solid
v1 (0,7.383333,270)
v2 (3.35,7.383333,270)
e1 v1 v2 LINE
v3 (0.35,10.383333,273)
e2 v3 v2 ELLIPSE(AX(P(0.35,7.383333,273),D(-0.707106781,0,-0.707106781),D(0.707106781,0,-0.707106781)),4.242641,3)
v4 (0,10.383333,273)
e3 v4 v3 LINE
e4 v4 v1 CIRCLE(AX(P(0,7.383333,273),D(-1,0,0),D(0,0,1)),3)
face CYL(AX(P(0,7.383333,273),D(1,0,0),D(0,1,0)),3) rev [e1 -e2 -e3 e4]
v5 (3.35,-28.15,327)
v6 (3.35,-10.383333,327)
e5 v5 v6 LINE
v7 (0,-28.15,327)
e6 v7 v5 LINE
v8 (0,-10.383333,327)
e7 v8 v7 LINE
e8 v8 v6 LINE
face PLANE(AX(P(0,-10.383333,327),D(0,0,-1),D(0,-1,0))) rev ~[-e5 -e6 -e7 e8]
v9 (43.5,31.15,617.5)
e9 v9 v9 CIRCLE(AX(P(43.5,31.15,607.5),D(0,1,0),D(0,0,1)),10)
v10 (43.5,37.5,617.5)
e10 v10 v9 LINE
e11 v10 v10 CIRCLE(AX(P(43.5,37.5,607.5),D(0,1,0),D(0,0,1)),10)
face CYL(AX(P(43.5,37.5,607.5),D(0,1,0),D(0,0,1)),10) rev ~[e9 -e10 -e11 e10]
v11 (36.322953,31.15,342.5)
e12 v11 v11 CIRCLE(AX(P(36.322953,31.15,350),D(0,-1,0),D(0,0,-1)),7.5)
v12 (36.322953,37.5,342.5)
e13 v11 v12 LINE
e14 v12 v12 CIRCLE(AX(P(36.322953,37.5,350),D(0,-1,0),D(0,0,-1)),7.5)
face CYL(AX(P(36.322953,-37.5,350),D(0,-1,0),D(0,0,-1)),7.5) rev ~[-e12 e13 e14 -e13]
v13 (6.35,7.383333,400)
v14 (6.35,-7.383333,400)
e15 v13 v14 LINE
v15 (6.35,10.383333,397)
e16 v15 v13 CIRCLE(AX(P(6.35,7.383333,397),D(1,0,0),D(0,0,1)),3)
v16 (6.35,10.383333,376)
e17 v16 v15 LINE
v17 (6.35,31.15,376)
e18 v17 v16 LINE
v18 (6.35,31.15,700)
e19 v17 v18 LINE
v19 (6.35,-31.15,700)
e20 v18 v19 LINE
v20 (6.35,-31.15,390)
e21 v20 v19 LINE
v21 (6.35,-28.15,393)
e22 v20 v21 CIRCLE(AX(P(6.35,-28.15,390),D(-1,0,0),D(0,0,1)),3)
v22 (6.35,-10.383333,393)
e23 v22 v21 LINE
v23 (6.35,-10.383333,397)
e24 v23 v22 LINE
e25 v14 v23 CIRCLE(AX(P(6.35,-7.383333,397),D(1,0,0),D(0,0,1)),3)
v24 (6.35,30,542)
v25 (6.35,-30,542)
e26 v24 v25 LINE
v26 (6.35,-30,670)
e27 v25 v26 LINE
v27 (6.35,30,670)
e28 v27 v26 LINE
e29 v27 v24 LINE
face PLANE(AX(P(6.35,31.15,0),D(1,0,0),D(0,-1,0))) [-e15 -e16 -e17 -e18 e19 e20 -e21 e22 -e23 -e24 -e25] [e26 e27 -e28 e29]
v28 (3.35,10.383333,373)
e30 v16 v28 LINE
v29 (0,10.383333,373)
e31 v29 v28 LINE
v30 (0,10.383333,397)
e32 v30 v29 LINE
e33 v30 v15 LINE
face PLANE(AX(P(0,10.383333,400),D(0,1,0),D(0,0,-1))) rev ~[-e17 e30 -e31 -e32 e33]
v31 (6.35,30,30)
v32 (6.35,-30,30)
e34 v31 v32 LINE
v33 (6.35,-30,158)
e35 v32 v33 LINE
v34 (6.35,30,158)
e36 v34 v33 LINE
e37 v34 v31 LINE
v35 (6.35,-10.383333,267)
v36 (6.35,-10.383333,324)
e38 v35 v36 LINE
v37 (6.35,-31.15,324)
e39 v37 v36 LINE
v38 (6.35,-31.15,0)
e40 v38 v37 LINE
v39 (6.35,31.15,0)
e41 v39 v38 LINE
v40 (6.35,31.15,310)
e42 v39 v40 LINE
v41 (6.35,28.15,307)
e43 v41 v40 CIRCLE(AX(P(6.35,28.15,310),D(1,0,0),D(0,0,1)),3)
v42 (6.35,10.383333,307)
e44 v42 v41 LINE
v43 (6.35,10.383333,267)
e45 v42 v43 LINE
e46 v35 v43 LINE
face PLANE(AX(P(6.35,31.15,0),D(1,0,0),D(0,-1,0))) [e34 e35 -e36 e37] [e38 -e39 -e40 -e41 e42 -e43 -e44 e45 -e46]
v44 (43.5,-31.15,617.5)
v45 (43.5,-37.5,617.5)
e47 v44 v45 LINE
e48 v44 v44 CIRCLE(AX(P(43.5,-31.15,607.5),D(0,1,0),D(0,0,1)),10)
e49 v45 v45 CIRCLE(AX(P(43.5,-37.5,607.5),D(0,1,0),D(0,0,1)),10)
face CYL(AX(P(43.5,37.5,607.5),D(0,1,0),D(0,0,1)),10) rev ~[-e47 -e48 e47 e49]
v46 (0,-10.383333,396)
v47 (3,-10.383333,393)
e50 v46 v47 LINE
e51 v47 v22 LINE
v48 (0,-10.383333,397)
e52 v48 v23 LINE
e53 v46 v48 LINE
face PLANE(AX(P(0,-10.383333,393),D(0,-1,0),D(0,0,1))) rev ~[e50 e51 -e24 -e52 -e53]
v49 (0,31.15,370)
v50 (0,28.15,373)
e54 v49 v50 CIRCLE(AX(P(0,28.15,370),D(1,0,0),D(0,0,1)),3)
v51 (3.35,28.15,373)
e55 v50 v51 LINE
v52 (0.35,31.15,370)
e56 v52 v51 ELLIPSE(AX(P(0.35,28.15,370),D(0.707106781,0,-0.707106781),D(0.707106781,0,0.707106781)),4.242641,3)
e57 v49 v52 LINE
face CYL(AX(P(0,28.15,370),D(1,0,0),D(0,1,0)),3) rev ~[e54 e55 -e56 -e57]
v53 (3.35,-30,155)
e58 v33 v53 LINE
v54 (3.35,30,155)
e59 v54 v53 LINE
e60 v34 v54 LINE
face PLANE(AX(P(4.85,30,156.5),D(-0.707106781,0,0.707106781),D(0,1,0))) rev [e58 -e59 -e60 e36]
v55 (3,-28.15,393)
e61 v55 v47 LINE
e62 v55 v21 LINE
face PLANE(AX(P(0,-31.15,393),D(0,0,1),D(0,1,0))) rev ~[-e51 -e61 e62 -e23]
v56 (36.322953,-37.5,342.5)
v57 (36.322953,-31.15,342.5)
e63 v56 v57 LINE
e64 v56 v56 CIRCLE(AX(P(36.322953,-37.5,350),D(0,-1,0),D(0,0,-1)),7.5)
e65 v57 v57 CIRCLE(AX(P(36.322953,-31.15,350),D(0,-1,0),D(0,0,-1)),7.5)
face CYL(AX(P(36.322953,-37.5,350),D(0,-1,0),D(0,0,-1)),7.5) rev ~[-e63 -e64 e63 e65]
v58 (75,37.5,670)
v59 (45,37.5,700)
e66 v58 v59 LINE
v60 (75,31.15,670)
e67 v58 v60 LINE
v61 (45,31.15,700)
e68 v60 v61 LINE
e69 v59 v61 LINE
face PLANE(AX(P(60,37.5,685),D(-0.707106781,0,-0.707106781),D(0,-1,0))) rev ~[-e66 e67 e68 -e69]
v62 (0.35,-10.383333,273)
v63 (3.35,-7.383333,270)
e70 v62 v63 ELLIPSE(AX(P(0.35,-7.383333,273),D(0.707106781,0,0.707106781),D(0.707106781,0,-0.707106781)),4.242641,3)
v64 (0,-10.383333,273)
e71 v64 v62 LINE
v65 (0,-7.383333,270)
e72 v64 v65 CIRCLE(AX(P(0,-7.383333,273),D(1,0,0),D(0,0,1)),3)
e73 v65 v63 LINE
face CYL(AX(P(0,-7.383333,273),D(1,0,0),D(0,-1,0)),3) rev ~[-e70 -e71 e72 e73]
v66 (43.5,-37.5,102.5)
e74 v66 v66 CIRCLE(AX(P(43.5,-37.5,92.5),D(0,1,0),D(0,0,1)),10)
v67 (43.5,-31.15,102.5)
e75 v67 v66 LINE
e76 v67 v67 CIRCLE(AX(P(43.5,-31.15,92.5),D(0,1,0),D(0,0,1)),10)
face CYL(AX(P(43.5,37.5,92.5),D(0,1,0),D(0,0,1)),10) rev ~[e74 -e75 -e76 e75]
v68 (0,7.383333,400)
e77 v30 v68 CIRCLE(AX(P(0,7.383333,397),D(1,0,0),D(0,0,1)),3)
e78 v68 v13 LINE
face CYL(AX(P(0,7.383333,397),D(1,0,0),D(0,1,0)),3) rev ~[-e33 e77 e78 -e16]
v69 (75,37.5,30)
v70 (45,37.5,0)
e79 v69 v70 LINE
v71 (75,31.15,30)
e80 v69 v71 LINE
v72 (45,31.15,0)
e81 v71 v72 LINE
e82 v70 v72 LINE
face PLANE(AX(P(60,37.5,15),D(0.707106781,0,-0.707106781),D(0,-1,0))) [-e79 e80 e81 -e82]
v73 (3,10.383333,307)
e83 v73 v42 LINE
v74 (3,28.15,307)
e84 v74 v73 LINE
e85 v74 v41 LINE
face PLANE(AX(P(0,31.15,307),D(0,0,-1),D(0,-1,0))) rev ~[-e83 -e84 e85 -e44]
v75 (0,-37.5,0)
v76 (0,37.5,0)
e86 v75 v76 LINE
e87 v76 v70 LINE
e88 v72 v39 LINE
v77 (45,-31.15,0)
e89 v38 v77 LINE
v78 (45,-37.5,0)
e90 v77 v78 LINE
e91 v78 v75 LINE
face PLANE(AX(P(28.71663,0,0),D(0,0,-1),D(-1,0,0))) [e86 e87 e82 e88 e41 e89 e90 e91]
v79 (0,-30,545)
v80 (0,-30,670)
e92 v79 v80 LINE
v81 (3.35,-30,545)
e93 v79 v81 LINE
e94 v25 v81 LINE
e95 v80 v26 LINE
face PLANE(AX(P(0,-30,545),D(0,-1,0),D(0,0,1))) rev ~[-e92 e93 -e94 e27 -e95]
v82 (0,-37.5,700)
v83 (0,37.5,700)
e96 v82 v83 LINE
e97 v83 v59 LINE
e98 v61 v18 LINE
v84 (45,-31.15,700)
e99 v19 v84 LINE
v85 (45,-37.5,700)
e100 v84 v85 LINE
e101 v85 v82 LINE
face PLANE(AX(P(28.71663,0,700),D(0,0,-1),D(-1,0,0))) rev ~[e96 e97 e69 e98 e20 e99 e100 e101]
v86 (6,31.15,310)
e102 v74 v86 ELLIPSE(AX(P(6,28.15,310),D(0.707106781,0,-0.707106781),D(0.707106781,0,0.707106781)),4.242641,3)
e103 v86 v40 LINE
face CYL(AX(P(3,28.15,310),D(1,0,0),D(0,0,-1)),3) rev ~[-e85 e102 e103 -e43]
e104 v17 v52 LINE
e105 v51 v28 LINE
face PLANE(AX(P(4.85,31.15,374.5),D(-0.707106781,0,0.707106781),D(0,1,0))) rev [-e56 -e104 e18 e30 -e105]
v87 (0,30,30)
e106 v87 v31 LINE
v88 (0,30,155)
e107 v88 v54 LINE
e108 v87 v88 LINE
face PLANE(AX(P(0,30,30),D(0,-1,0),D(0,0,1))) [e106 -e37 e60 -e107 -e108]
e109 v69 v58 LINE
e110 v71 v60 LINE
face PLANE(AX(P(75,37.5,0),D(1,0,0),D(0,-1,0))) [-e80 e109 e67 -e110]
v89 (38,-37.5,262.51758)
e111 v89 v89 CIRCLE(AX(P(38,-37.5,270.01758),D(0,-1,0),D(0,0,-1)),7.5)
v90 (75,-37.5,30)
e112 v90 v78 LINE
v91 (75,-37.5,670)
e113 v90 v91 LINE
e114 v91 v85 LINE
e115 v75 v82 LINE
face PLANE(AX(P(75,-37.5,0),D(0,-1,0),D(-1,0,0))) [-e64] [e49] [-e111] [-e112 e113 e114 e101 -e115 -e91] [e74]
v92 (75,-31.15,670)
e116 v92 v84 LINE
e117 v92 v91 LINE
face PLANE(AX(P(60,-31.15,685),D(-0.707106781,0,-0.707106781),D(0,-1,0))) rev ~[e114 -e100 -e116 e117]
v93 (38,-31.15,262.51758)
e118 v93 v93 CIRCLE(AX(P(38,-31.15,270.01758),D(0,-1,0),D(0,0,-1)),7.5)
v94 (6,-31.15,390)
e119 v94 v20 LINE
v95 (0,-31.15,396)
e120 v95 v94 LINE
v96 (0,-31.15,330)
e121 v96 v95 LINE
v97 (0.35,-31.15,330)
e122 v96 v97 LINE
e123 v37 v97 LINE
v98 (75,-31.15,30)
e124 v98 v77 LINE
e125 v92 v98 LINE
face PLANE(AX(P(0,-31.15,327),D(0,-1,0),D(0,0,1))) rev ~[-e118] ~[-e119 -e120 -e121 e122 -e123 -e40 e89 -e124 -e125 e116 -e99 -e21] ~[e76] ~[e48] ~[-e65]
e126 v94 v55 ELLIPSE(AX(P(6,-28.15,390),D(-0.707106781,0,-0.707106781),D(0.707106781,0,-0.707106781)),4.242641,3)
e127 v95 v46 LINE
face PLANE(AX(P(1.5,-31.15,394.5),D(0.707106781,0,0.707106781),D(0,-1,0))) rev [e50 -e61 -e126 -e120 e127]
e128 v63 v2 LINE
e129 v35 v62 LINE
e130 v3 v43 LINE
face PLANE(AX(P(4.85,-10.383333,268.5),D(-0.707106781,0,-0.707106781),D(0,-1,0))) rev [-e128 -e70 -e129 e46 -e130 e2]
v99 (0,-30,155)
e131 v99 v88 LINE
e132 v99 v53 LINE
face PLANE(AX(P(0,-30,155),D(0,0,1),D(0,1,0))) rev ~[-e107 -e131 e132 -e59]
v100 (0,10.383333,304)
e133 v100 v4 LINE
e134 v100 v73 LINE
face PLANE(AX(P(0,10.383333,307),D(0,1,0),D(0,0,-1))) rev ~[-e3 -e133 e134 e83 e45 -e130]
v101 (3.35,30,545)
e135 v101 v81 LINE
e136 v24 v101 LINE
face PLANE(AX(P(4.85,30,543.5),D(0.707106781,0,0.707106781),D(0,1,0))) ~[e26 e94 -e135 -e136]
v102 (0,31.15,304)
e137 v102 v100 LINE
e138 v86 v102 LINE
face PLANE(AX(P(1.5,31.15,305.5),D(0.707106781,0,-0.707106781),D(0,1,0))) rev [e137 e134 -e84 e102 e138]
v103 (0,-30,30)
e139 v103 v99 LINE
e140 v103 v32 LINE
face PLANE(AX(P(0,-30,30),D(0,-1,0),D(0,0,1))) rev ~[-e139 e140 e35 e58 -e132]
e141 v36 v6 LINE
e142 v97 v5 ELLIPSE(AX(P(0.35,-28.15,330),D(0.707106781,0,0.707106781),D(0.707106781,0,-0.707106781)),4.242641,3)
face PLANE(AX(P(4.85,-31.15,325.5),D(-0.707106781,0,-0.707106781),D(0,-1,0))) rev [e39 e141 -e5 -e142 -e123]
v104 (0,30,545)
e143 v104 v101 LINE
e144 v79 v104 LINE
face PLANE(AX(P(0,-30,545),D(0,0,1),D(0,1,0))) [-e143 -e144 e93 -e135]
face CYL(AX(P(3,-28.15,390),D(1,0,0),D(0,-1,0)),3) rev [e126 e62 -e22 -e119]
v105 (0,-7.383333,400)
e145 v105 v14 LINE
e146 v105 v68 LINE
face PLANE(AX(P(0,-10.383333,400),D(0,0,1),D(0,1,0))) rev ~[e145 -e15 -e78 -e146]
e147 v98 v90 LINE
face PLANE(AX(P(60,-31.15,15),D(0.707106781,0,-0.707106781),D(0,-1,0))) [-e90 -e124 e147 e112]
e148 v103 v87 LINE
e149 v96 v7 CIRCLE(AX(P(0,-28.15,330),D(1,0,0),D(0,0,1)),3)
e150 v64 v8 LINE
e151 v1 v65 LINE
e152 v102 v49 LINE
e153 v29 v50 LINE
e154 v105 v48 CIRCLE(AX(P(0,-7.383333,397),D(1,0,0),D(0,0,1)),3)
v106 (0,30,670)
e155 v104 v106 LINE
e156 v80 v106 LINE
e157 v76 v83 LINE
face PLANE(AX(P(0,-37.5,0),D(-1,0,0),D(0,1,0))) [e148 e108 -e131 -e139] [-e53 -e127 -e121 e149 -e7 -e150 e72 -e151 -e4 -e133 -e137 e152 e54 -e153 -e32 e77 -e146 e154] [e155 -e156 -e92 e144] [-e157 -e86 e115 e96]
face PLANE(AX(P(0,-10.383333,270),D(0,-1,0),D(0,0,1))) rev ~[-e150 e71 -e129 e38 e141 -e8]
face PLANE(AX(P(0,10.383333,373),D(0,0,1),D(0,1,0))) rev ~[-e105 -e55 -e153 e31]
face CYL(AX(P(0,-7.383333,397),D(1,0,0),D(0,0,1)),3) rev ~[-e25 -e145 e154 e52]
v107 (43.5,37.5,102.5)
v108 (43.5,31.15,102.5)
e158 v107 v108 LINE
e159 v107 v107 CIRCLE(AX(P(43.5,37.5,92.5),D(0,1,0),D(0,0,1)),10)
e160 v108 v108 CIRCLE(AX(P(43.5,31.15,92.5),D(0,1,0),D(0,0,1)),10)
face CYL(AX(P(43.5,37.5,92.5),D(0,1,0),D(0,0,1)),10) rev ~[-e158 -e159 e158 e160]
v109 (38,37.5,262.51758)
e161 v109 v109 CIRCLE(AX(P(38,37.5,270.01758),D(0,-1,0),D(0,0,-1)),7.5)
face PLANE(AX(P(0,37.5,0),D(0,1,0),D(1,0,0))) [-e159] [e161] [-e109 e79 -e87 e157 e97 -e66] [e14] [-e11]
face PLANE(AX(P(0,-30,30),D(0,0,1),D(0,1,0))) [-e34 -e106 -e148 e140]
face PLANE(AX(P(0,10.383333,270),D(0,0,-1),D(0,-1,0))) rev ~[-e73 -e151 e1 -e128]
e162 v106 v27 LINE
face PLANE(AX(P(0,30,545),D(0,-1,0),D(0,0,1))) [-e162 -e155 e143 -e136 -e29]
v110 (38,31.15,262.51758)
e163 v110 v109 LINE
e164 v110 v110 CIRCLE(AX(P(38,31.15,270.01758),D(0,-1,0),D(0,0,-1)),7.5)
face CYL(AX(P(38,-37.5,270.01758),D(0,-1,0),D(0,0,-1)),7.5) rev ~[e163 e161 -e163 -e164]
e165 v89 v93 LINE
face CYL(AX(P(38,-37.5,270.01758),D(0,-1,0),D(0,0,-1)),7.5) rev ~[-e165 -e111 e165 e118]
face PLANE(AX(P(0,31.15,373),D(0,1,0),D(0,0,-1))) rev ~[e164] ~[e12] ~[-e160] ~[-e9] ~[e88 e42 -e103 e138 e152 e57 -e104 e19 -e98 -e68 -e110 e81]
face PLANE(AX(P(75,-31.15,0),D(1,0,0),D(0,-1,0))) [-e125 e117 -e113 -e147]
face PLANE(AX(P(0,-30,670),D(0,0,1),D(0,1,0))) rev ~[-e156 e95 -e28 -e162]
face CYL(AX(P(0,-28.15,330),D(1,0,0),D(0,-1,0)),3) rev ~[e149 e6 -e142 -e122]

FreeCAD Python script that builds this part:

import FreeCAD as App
import Part
import Sketcher

V = App.Vector
Q = App.Units.Quantity


def edges_at(feature, points):
    """Names of the edges that pass closest to the given points."""
    edges = feature.Shape.Edges
    near = lambda p: min(range(len(edges)), key=lambda i: edges[i].distToShape(Part.Vertex(*p))[0])
    return sorted({f"Edge{near(p) + 1}" for p in points})


def add_polygon(sketch, points):
    """Adds a closed chain of lines whose ends are joined by coincident constraints."""
    first, n = sketch.GeometryCount, len(points)
    for a, b in zip(points, points[1:] + points[:1]):
        sketch.addGeometry(Part.LineSegment(App.Vector(*a, 0), App.Vector(*b, 0)), False)
    for i in range(n):
        sketch.addConstraint(Sketcher.Constraint("Coincident", first + i, 2, first + (i + 1) % n, 1))

doc = App.newDocument("Part")
body = doc.addObject("PartDesign::Body", "Body")

# Sketch on XY plane
sketch1 = body.newObject("Sketcher::SketchObject", "Sketch")
sketch1.AttachmentSupport = (doc.getObject("XY_Plane"), [""])
sketch1.MapMode = "FlatFace"
add_polygon(sketch1, [(0, 37.5), (0, -37.5), (75, -37.5), (75, -31.15), (6.35, -31.15), (6.35, 31.15), (75, 31.15), (75, 37.5)])  # lines 0-7
sketch1.addConstraint([
    Sketcher.Constraint("Vertical", 0),
    Sketcher.Constraint("Horizontal", 1),
    Sketcher.Constraint("Vertical", 2),
    Sketcher.Constraint("Horizontal", 3),
    Sketcher.Constraint("Vertical", 4),
    Sketcher.Constraint("Horizontal", 5),
    Sketcher.Constraint("Vertical", 6),
    Sketcher.Constraint("Horizontal", 7),
    Sketcher.Constraint("Symmetric", 0, 2, 7, 2, -1, 1),
    Sketcher.Constraint("Symmetric", 2, 2, 5, 2, -1),
    Sketcher.Constraint("Equal", 7, 0),
    Sketcher.Constraint("DistanceX", 1, 1, 1, 2, Q("75 mm")),
    Sketcher.Constraint("DistanceY", 4, 1, 4, 2, Q("62.3 mm")),
    Sketcher.Constraint("DistanceX", 3, 2, 3, 1, Q("68.65 mm")),
])
pad1 = body.newObject("PartDesign::Pad", "Pad")
pad1.Profile = sketch1
pad1.Length = 700

# Sketch on YZ plane
sketch2 = body.newObject("Sketcher::SketchObject", "Sketch001")
sketch2.AttachmentSupport = (doc.getObject("YZ_Plane"), [""])
sketch2.MapMode = "FlatFace"
add_polygon(sketch2, [(30, 30), (-30, 30), (-30, 155), (30, 155)])  # lines 0-3
add_polygon(sketch2, [(30, 545), (-30, 545), (-30, 670), (30, 670)])  # lines 4-7
add_polygon(sketch2, [(10.383333, 400), (10.383333, 373), (31.15, 373), (31.15, 307), (10.383333, 307), (10.383333, 270), (-10.383333, 270), (-10.383333, 327), (-31.15, 327), (-31.15, 393), (-10.383333, 393), (-10.383333, 400)])  # lines 8-19
sketch2.addConstraint([
    Sketcher.Constraint("Horizontal", 0),
    Sketcher.Constraint("Vertical", 1),
    Sketcher.Constraint("Horizontal", 2),
    Sketcher.Constraint("Vertical", 3),
    Sketcher.Constraint("Horizontal", 4),
    Sketcher.Constraint("Vertical", 5),
    Sketcher.Constraint("Horizontal", 6),
    Sketcher.Constraint("Vertical", 7),
    Sketcher.Constraint("Vertical", 8),
    Sketcher.Constraint("Horizontal", 9),
    Sketcher.Constraint("Vertical", 10),
    Sketcher.Constraint("Horizontal", 11),
    Sketcher.Constraint("Vertical", 12),
    Sketcher.Constraint("Horizontal", 13),
    Sketcher.Constraint("Vertical", 14),
    Sketcher.Constraint("Horizontal", 15),
    Sketcher.Constraint("Vertical", 16),
    Sketcher.Constraint("Horizontal", 17),
    Sketcher.Constraint("Vertical", 18),
    Sketcher.Constraint("Horizontal", 19),
    Sketcher.Constraint("Vertical", 1, 2, 4, 2),
    Sketcher.Constraint("Vertical", 3, 2, 6, 2),
    Sketcher.Constraint("Vertical", 8, 2, 11, 2),
    Sketcher.Constraint("Vertical", 14, 2, 17, 2),
    Sketcher.Constraint("Equal", 11, 13),
    Sketcher.Constraint("Equal", 13, 15),
    Sketcher.Constraint("Equal", 3, 5),
    Sketcher.Constraint("Equal", 10, 16),
    Sketcher.Constraint("DistanceX", 0, 2, 0, 1, Q("60 mm")),
    Sketcher.Constraint("DistanceY", 1, 1, 1, 2, Q("125 mm")),
    Sketcher.Constraint("DistanceY", 8, 2, 8, 1, Q("27 mm")),
    Sketcher.Constraint("DistanceY", 10, 2, 10, 1, Q("66 mm")),
    Sketcher.Constraint("DistanceY", 12, 2, 12, 1, Q("37 mm")),
    Sketcher.Constraint("DistanceY", 14, 1, 14, 2, Q("57 mm")),
    Sketcher.Constraint("DistanceX", 0, 2, -1, 1, Q("30 mm")),
    Sketcher.Constraint("DistanceY", -1, 1, 0, 2, Q("30 mm")),
    Sketcher.Constraint("DistanceY", -1, 1, 4, 2, Q("545 mm")),
    Sketcher.Constraint("DistanceY", -1, 1, 8, 2, Q("373 mm")),
    Sketcher.Constraint("DistanceX", 15, 2, 10, 2, Q("62.3 mm")),
    Sketcher.Constraint("DistanceX", -1, 1, 9, 2, Q("31.15 mm")),
])
pocket1 = body.newObject("PartDesign::Pocket", "Pocket")
pocket1.Profile = sketch2
pocket1.Type = "ThroughAll"
pocket1.Reversed = True
doc.recompute()

chamfer = body.newObject("PartDesign::Chamfer", "Chamfer")
chamfer.Base = (pocket1, edges_at(pocket1, [
    (75, -34.325, 0),
    (75, 34.325, 700),
    (75, -34.325, 700),
    (75, 34.325, 0),
]))
chamfer.Size = 30

# Sketch on XZ plane
sketch3 = body.newObject("Sketcher::SketchObject", "Sketch002")
sketch3.AttachmentSupport = (doc.getObject("XZ_Plane"), [""])
sketch3.MapMode = "FlatFace"
sketch3.AttachmentOffset = App.Placement(V(0, 0, -37.5), App.Rotation())
sketch3.addGeometry([
    Part.Circle(V(43.5, 607.5, 0), V(0, 0, 1), 10),
    Part.Circle(V(43.5, 92.5, 0), V(0, 0, 1), 10),
], False)
sketch3.addConstraint([
    Sketcher.Constraint("Equal", 0, 1),
    Sketcher.Constraint("Vertical", 0, 3, 1, 3),
    Sketcher.Constraint("Diameter", 0, Q("20 mm")),
    Sketcher.Constraint("DistanceY", 1, 3, 0, 3, Q("515 mm")),
    Sketcher.Constraint("DistanceX", -1, 1, 0, 3, Q("43.5 mm")),
    Sketcher.Constraint("DistanceY", -1, 1, 0, 3, Q("607.5 mm")),
])
pocket2 = body.newObject("PartDesign::Pocket", "Pocket001")
pocket2.Profile = sketch3
pocket2.Type = "ThroughAll"
pocket2.Reversed = True

# Sketch on XZ plane
sketch4 = body.newObject("Sketcher::SketchObject", "Sketch003")
sketch4.AttachmentSupport = (doc.getObject("XZ_Plane"), [""])
sketch4.MapMode = "FlatFace"
sketch4.AttachmentOffset = App.Placement(V(0, 0, 37.5), App.Rotation())
sketch4.addGeometry([
    Part.Circle(V(38, 270.01758, 0), V(0, 0, 1), 7.5),
    Part.Circle(V(36.322953, 350, 0), V(0, 0, 1), 7.5),
], False)
sketch4.addConstraint([
    Sketcher.Constraint("Equal", 0, 1),
    Sketcher.Constraint("Diameter", 0, Q("15 mm")),
    Sketcher.Constraint("DistanceX", -1, 1, 0, 3, Q("38 mm")),
    Sketcher.Constraint("DistanceY", -1, 1, 1, 3, Q("350 mm")),
    Sketcher.Constraint("DistanceY", -1, 1, 0, 3, Q("270.01758 mm")),
    Sketcher.Constraint("DistanceX", -1, 1, 1, 3, Q("36.322953 mm")),
])
pocket3 = body.newObject("PartDesign::Pocket", "Pocket002")
pocket3.Profile = sketch4
pocket3.Type = "ThroughAll"
doc.recompute()

chamfer2 = body.newObject("PartDesign::Chamfer", "Chamfer001")
chamfer2.Base = (pocket3, edges_at(pocket3, [
    (6.35, 0, 155),
    (6.35, 0, 545),
    (6.35, -20.767, 327),
    (6.35, 0, 270),
    (6.35, 20.767, 373),
    (0, -20.767, 393),
    (0, 20.767, 307),
]))
chamfer2.Size = 3
doc.recompute()

fillet = body.newObject("PartDesign::Fillet", "Fillet")
fillet.Base = (chamfer2, edges_at(chamfer2, [
    (1.675, 10.383, 270),
    (1.675, -10.383, 270),
    (1.675, 31.15, 373),
    (1.675, -31.15, 327),
    (4.675, -31.15, 393),
    (4.675, 31.15, 307),
    (3.175, 10.383, 400),
    (3.175, -10.383, 400),
]))
fillet.Radius = 3

doc.recompute()
